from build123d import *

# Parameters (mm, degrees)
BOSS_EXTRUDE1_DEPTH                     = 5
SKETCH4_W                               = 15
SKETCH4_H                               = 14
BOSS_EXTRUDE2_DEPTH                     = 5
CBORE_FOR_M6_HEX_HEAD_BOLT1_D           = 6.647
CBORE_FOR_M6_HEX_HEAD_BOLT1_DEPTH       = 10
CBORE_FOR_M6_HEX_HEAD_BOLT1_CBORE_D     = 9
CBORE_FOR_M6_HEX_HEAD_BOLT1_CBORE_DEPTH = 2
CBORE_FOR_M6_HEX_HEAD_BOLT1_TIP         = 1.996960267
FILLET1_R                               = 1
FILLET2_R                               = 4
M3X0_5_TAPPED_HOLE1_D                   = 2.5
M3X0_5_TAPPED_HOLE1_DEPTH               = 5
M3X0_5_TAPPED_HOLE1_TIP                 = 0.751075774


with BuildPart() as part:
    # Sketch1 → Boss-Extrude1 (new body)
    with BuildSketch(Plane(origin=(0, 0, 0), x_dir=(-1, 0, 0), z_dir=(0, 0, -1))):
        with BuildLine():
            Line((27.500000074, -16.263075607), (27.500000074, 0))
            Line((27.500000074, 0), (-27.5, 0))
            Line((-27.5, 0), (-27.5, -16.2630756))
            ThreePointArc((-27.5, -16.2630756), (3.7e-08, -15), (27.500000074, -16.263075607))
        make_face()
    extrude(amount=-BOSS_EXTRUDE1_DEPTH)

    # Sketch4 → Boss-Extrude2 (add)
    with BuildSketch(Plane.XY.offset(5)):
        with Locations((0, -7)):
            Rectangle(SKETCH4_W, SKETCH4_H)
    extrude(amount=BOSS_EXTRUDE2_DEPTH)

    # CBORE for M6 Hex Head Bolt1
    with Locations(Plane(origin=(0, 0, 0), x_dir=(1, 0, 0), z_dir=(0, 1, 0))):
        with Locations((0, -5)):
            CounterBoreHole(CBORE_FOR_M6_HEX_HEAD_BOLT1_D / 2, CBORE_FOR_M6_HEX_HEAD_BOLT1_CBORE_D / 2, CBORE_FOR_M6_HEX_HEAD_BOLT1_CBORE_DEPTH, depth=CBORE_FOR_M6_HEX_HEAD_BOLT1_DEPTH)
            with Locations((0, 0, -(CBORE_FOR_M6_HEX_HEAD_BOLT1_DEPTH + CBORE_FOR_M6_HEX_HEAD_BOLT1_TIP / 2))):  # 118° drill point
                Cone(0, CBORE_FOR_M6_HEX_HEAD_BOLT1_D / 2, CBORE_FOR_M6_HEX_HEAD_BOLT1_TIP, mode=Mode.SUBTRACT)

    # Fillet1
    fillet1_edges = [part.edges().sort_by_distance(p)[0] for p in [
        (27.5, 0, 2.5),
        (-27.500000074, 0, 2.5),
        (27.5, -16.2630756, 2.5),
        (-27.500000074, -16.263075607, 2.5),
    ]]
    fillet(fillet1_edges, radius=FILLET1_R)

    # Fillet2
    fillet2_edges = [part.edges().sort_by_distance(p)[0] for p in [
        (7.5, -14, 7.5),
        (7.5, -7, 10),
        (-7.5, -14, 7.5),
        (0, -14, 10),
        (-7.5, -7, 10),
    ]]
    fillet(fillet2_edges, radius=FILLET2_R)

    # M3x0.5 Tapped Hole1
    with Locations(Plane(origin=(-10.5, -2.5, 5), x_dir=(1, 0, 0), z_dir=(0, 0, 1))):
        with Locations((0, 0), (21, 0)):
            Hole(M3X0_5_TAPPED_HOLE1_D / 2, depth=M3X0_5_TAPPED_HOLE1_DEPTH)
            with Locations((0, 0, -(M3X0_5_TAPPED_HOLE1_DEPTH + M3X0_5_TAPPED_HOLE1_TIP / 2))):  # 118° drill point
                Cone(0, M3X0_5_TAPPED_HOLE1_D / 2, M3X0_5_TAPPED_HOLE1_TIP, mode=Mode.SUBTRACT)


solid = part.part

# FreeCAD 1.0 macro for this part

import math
import FreeCAD as App
import Part
import Sketcher
Q = App.Units.Quantity


def edges_at(feature, points):
    """Names of the edges that pass closest to the given points."""
    edges = feature.Shape.Edges
    near = lambda p: min(range(len(edges)), key=lambda i: edges[i].distToShape(Part.Vertex(*p))[0])
    return sorted({f"Edge{near(p) + 1}" for p in points})


def add_polygon(sketch, points):
    """Adds a closed chain of lines whose ends are joined by coincident constraints."""
    first, n = sketch.GeometryCount, len(points)
    for a, b in zip(points, points[1:] + points[:1]):
        sketch.addGeometry(Part.LineSegment(App.Vector(*a, 0), App.Vector(*b, 0)), False)
    for i in range(n):
        sketch.addConstraint(Sketcher.Constraint("Coincident", first + i, 2, first + (i + 1) % n, 1))

doc = App.newDocument("Part")
body = doc.addObject("PartDesign::Body", "Body")

# Sketch on XY plane
sketch1 = body.newObject("Sketcher::SketchObject", "Sketch")
sketch1.AttachmentSupport = (doc.getObject("XY_Plane"), [""])
sketch1.MapMode = "FlatFace"
sketch1.addGeometry(Part.LineSegment(App.Vector(-28, -16, 0), App.Vector(-28, 0, 0)), False)
sketch1.addGeometry(Part.LineSegment(App.Vector(-28, 0, 0), App.Vector(28, 0, 0)), False)
sketch1.addGeometry(Part.LineSegment(App.Vector(28, 0, 0), App.Vector(28, -16, 0)), False)
sketch1.addGeometry(Part.ArcOfCircle(Part.Circle(App.Vector(0, -315, 0), App.Vector(0, 0, 1), 300), math.radians(84.74), math.radians(95.26)), False)
sketch1.addConstraint(Sketcher.Constraint("Coincident", 0, 2, 1, 1))
sketch1.addConstraint(Sketcher.Constraint("Coincident", 1, 2, 2, 1))
sketch1.addConstraint(Sketcher.Constraint("Coincident", 2, 2, 3, 1))
sketch1.addConstraint(Sketcher.Constraint("Coincident", 3, 2, 0, 1))
sketch1.addConstraint(Sketcher.Constraint("Vertical", 0))
sketch1.addConstraint(Sketcher.Constraint("Horizontal", 1))
sketch1.addConstraint(Sketcher.Constraint("Vertical", 2))
sketch1.addConstraint(Sketcher.Constraint("Symmetric", 0, 2, 1, 2, -1, 1))
sketch1.addConstraint(Sketcher.Constraint("PointOnObject", 3, 3, -2))
sketch1.addConstraint(Sketcher.Constraint("Radius", 3, Q("300 mm")))
sketch1.addConstraint(Sketcher.Constraint("DistanceX", 1, 1, 1, 2, Q("55 mm")))
sketch1.addConstraint(Sketcher.Constraint("DistanceY", 3, 3, -1, 1, Q("315 mm")))
pad1 = body.newObject("PartDesign::Pad", "Pad")
pad1.Profile = sketch1
pad1.Length = 5

# Sketch on XY plane
sketch2 = body.newObject("Sketcher::SketchObject", "Sketch001")
sketch2.AttachmentSupport = (doc.getObject("XY_Plane"), [""])
sketch2.MapMode = "FlatFace"
sketch2.AttachmentOffset = App.Placement(App.Vector(0, 0, 5), App.Rotation())
add_polygon(sketch2, [(-8, 0), (-8, -14), (8, -14), (8, 0)])  # lines 0-3
sketch2.addConstraint(Sketcher.Constraint("Vertical", 0))
sketch2.addConstraint(Sketcher.Constraint("Horizontal", 1))
sketch2.addConstraint(Sketcher.Constraint("Vertical", 2))
sketch2.addConstraint(Sketcher.Constraint("Horizontal", 3))
sketch2.addConstraint(Sketcher.Constraint("Symmetric", 2, 2, 3, 2, -1, 1))
sketch2.addConstraint(Sketcher.Constraint("DistanceX", 1, 1, 1, 2, Q("15 mm")))
sketch2.addConstraint(Sketcher.Constraint("DistanceY", 0, 2, 0, 1, Q("14 mm")))
pad2 = body.newObject("PartDesign::Pad", "Pad001")
pad2.Profile = sketch2
pad2.Length = 5

# Sketch on XZ plane
sketch3 = body.newObject("Sketcher::SketchObject", "Sketch002")
sketch3.AttachmentSupport = (doc.getObject("XZ_Plane"), [""])
sketch3.MapMode = "FlatFace"
sketch3.addGeometry(Part.Circle(App.Vector(0, 5, 0), App.Vector(0, 0, 1), 3.3), False)
sketch3.addConstraint(Sketcher.Constraint("PointOnObject", 0, 3, -2))
sketch3.addConstraint(Sketcher.Constraint("Diameter", 0, Q("6.647 mm")))
sketch3.addConstraint(Sketcher.Constraint("DistanceY", -1, 1, 0, 3, Q("5 mm")))
doc.recompute()
hole = body.newObject("PartDesign::Hole", "Hole")
hole.Profile = sketch3
hole.ThreadType = "None"
hole.Diameter = 6.647
hole.DepthType = "Dimension"
hole.Depth = 10
hole.DrillPoint = "Angled"
hole.DrillPointAngle = 118
hole.HoleCutType = "Counterbore"
hole.HoleCutDiameter = 9
hole.HoleCutDepth = 2
hole.Reversed = True
doc.recompute()

fillet = body.newObject("PartDesign::Fillet", "Fillet")
fillet.Base = (hole, edges_at(hole, [
    (27.5, 0, 2.5),
    (-27.5, 0, 2.5),
    (27.5, -16.263, 2.5),
    (-27.5, -16.263, 2.5),
]))
fillet.Radius = 1
doc.recompute()

fillet2 = body.newObject("PartDesign::Fillet", "Fillet001")
fillet2.Base = (fillet, edges_at(fillet, [
    (7.5, -14, 7.5),
    (7.5, -7, 10),
    (-7.5, -14, 7.5),
    (0, -14, 10),
    (-7.5, -7, 10),
]))
fillet2.Radius = 4

# Sketch on XY plane
sketch4 = body.newObject("Sketcher::SketchObject", "Sketch003")
sketch4.AttachmentSupport = (doc.getObject("XY_Plane"), [""])
sketch4.MapMode = "FlatFace"
sketch4.AttachmentOffset = App.Placement(App.Vector(0, 0, 5), App.Rotation())
sketch4.addGeometry(Part.Circle(App.Vector(-10.5, -2.5, 0), App.Vector(0, 0, 1), 1.2), False)
sketch4.addGeometry(Part.Circle(App.Vector(10.5, -2.5, 0), App.Vector(0, 0, 1), 1.2), False)
sketch4.addConstraint(Sketcher.Constraint("Equal", 0, 1))
sketch4.addConstraint(Sketcher.Constraint("Symmetric", 0, 3, 1, 3, -2))
sketch4.addConstraint(Sketcher.Constraint("Diameter", 0, Q("2.5 mm")))
sketch4.addConstraint(Sketcher.Constraint("DistanceX", 0, 3, 1, 3, Q("21 mm")))
sketch4.addConstraint(Sketcher.Constraint("DistanceY", 0, 3, -1, 1, Q("2.5 mm")))
doc.recompute()
hole2 = body.newObject("PartDesign::Hole", "Hole001")
hole2.Profile = sketch4
hole2.ThreadType = "None"
hole2.Diameter = 2.5
hole2.DepthType = "Dimension"
hole2.Depth = 5
hole2.DrillPoint = "Angled"
hole2.DrillPointAngle = 118

doc.recompute()
